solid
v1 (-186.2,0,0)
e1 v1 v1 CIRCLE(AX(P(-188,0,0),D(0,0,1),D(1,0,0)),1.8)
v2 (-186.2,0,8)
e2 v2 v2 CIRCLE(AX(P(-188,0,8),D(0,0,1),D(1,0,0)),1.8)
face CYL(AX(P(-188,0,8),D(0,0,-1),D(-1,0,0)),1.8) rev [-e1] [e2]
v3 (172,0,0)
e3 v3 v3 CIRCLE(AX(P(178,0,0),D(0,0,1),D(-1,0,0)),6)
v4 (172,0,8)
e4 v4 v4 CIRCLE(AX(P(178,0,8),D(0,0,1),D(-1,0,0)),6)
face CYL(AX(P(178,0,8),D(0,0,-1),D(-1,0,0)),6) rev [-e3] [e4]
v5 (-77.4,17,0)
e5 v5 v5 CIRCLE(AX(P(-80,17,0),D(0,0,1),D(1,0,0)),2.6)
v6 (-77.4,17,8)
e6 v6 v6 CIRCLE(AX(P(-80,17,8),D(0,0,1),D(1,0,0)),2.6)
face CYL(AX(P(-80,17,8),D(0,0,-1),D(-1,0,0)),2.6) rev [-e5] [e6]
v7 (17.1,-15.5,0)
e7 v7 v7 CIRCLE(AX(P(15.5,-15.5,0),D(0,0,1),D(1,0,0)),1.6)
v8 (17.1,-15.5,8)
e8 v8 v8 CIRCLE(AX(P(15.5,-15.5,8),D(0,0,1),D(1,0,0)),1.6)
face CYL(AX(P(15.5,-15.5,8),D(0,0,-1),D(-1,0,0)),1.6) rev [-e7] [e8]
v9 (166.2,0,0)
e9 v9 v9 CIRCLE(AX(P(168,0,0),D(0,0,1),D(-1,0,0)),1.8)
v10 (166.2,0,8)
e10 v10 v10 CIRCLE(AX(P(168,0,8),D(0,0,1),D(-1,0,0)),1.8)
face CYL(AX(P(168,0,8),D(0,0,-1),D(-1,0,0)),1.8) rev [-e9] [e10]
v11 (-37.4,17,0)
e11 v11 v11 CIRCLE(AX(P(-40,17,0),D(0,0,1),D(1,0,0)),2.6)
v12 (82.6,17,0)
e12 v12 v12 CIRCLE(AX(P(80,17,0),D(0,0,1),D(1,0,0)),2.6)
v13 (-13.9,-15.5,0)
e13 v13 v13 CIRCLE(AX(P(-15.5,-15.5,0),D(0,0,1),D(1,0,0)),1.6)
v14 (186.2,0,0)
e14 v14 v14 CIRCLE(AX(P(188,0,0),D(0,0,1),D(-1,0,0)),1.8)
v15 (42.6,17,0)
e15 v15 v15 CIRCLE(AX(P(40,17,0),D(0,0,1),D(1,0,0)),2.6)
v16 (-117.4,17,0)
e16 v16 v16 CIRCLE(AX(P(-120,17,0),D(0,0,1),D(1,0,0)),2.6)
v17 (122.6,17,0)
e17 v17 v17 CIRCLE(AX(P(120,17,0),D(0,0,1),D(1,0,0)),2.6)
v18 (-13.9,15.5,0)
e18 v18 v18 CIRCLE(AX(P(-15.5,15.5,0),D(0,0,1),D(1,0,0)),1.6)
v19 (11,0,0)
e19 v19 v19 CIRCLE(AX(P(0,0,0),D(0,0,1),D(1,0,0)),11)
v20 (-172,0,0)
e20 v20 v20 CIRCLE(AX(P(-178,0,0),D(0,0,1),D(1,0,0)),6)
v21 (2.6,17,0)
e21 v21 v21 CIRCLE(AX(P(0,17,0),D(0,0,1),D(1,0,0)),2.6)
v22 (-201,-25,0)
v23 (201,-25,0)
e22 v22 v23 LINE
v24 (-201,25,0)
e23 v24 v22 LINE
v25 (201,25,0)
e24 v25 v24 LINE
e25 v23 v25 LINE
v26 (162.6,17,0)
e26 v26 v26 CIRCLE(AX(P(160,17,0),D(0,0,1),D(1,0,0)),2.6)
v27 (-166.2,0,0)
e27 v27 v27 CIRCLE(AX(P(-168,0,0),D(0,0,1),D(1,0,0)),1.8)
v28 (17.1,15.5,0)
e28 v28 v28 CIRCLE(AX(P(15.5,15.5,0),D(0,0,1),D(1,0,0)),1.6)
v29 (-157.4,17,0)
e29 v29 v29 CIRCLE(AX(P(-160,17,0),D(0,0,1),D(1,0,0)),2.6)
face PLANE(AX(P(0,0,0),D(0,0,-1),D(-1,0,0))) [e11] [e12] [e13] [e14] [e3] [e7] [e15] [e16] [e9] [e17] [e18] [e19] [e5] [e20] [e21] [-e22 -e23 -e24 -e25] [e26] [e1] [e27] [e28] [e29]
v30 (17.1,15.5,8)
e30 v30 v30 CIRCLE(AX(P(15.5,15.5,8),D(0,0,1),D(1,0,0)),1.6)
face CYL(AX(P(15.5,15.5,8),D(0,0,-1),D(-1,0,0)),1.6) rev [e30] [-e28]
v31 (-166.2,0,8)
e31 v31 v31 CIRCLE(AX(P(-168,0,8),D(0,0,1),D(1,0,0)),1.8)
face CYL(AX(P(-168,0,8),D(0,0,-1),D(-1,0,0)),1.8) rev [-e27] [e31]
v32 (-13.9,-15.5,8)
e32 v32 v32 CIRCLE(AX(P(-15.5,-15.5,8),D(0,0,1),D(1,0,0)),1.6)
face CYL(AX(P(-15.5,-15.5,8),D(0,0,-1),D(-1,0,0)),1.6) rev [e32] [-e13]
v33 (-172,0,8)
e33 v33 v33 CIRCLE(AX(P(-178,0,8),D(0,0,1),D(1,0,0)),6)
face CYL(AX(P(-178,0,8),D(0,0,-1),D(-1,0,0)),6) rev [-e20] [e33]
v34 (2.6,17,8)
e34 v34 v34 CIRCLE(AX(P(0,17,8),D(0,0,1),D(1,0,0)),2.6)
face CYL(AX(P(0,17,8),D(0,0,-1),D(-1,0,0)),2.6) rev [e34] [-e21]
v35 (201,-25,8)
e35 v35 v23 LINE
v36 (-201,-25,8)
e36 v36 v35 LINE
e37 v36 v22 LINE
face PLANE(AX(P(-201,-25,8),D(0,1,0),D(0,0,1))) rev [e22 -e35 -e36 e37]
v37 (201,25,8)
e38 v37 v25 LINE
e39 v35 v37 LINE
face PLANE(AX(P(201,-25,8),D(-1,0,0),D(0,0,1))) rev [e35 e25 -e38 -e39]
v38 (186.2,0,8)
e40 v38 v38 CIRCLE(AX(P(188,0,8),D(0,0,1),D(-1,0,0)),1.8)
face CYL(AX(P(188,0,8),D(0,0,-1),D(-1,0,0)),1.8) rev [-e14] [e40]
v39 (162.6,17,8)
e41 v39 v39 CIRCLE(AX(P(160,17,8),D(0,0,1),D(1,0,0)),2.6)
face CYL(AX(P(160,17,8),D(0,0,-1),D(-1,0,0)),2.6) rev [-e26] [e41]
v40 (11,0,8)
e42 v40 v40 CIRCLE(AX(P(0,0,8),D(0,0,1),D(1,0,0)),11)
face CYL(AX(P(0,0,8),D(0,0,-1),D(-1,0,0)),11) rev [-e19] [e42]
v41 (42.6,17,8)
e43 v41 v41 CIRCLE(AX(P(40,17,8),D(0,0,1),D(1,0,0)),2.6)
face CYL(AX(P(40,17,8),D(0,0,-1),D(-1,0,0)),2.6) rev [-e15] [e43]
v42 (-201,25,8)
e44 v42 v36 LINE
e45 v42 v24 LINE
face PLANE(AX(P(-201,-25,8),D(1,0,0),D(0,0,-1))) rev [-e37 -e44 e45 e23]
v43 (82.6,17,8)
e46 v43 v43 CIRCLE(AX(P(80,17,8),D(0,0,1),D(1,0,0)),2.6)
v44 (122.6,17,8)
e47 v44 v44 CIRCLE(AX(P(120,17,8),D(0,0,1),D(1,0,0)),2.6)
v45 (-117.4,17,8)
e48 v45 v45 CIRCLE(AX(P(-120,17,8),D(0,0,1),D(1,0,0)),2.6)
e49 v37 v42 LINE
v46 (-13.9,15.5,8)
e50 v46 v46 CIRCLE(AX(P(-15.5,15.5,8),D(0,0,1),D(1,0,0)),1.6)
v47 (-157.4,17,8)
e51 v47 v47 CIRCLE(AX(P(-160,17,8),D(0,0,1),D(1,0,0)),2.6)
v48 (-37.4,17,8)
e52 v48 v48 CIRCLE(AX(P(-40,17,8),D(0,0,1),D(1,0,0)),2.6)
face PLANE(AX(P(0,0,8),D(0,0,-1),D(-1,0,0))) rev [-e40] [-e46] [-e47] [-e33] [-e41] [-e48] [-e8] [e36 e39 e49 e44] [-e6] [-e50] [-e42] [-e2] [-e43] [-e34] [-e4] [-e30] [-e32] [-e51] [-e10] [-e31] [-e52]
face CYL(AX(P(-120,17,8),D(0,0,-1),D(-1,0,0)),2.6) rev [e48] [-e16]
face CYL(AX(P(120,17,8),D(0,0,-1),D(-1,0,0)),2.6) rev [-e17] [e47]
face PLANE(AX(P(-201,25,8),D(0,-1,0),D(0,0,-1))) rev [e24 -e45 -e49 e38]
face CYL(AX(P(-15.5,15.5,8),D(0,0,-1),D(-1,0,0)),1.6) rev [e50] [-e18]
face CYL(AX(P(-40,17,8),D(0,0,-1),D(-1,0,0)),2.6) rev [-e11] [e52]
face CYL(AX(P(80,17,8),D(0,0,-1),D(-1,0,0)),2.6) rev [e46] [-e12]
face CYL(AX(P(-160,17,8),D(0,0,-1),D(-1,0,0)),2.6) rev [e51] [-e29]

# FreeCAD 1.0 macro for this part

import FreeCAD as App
import Part
import Sketcher
from FreeCAD import Vector


def add_polygon(sketch, points):
    """Adds a closed chain of lines whose ends are joined by coincident constraints."""
    first, n = sketch.GeometryCount, len(points)
    for a, b in zip(points, points[1:] + points[:1]):
        sketch.addGeometry(Part.LineSegment(App.Vector(*a, 0), App.Vector(*b, 0)), False)
    for i in range(n):
        sketch.addConstraint(Sketcher.Constraint("Coincident", first + i, 2, first + (i + 1) % n, 1))

doc = App.newDocument("Part")
body = doc.addObject("PartDesign::Body", "Body")

# Sketch on XY plane
sketch1 = body.newObject("Sketcher::SketchObject", "Sketch")
sketch1.AttachmentSupport = (doc.getObject("XY_Plane"), [""])
sketch1.MapMode = "FlatFace"
add_polygon(sketch1, [(-201, 25), (-201, -25), (201, -25), (201, 25)])  # lines 0-3
sketch1.addGeometry(Part.Circle(Vector(-15.5, -15.5, 0), Vector(0, 0, 1), 1.6), False)  # 4
sketch1.addGeometry(Part.Circle(Vector(-188, 0, 0), Vector(0, 0, 1), 1.8), False)  # 5
sketch1.addGeometry(Part.Circle(Vector(-178, 0, 0), Vector(0, 0, 1), 6), False)  # 6
sketch1.addGeometry(Part.Circle(Vector(-168, 0, 0), Vector(0, 0, 1), 1.8), False)  # 7
sketch1.addGeometry(Part.Circle(Vector(15.5, -15.5, 0), Vector(0, 0, 1), 1.6), False)  # 8
sketch1.addGeometry(Part.Circle(Vector(0, 0, 0), Vector(0, 0, 1), 11), False)  # 9
sketch1.addGeometry(Part.Circle(Vector(168, 0, 0), Vector(0, 0, 1), 1.8), False)  # 10
sketch1.addGeometry(Part.Circle(Vector(178, 0, 0), Vector(0, 0, 1), 6), False)  # 11
sketch1.addGeometry(Part.Circle(Vector(188, 0, 0), Vector(0, 0, 1), 1.8), False)  # 12
sketch1.addGeometry(Part.Circle(Vector(-160, 17, 0), Vector(0, 0, 1), 2.6), False)  # 13
sketch1.addGeometry(Part.Circle(Vector(-120, 17, 0), Vector(0, 0, 1), 2.6), False)  # 14
sketch1.addGeometry(Part.Circle(Vector(-80, 17, 0), Vector(0, 0, 1), 2.6), False)  # 15
sketch1.addGeometry(Part.Circle(Vector(-40, 17, 0), Vector(0, 0, 1), 2.6), False)  # 16
sketch1.addGeometry(Part.Circle(Vector(-15.5, 15.5, 0), Vector(0, 0, 1), 1.6), False)  # 17
sketch1.addGeometry(Part.Circle(Vector(15.5, 15.5, 0), Vector(0, 0, 1), 1.6), False)  # 18
sketch1.addGeometry(Part.Circle(Vector(0, 17, 0), Vector(0, 0, 1), 2.6), False)  # 19
sketch1.addGeometry(Part.Circle(Vector(40, 17, 0), Vector(0, 0, 1), 2.6), False)  # 20
sketch1.addGeometry(Part.Circle(Vector(80, 17, 0), Vector(0, 0, 1), 2.6), False)  # 21
sketch1.addGeometry(Part.Circle(Vector(120, 17, 0), Vector(0, 0, 1), 2.6), False)  # 22
sketch1.addGeometry(Part.Circle(Vector(160, 17, 0), Vector(0, 0, 1), 2.6), False)  # 23
sketch1.addConstraint([
    Sketcher.Constraint("Vertical", 0),
    Sketcher.Constraint("Horizontal", 1),
    Sketcher.Constraint("Vertical", 2),
    Sketcher.Constraint("Horizontal", 3),
    Sketcher.Constraint("Coincident", 9, 3, -1, 1),
    Sketcher.Constraint("Equal", 5, 7),
    Sketcher.Constraint("Equal", 4, 8),
    Sketcher.Constraint("Equal", 7, 10),
    Sketcher.Constraint("Equal", 6, 11),
    Sketcher.Constraint("Equal", 10, 12),
    Sketcher.Constraint("Equal", 13, 14),
    Sketcher.Constraint("Equal", 14, 15),
    Sketcher.Constraint("Equal", 15, 16),
    Sketcher.Constraint("Equal", 8, 17),
    Sketcher.Constraint("Equal", 17, 18),
    Sketcher.Constraint("Equal", 16, 19),
    Sketcher.Constraint("Equal", 19, 20),
    Sketcher.Constraint("Equal", 20, 21),
    Sketcher.Constraint("Equal", 21, 22),
    Sketcher.Constraint("Equal", 22, 23),
    Sketcher.Constraint("Symmetric", 7, 3, 10, 3, -1, 1),
    Sketcher.Constraint("Symmetric", 6, 3, 11, 3, -1, 1),
    Sketcher.Constraint("Symmetric", 5, 3, 12, 3, -1, 1),
    Sketcher.Constraint("Symmetric", 8, 3, 17, 3, -1, 1),
    Sketcher.Constraint("Symmetric", 4, 3, 18, 3, -1, 1),
    Sketcher.Constraint("Symmetric", 0, 2, 2, 2, -1, 1),
    Sketcher.Constraint("Symmetric", 4, 3, 8, 3, -2),
    Sketcher.Constraint("Symmetric", 16, 3, 20, 3, -2),
    Sketcher.Constraint("Symmetric", 15, 3, 21, 3, -2),
    Sketcher.Constraint("Symmetric", 14, 3, 22, 3, -2),
    Sketcher.Constraint("Symmetric", 13, 3, 23, 3, -2),
    Sketcher.Constraint("PointOnObject", 5, 3, -1),
    Sketcher.Constraint("PointOnObject", 6, 3, -1),
    Sketcher.Constraint("PointOnObject", 7, 3, -1),
    Sketcher.Constraint("PointOnObject", 19, 3, -2),
    Sketcher.Constraint("Horizontal", 13, 3, 14, 3),
    Sketcher.Constraint("Horizontal", 14, 3, 15, 3),
    Sketcher.Constraint("Horizontal", 15, 3, 16, 3),
    Sketcher.Constraint("Horizontal", 16, 3, 19, 3),
    Sketcher.Constraint("Diameter", 6, 12.0),
    Sketcher.Constraint("Diameter", 9, 22.0),
    Sketcher.Constraint("Diameter", 4, 3.2),
    Sketcher.Constraint("Diameter", 5, 3.6),
    Sketcher.Constraint("Diameter", 13, 5.2),
    Sketcher.Constraint("DistanceX", 1, 1, 1, 2, 402.0),
    Sketcher.Constraint("DistanceY", 0, 2, 0, 1, 50.0),
    Sketcher.Constraint("DistanceX", 5, 3, -1, 1, 188.0),
    Sketcher.Constraint("DistanceX", 6, 3, -1, 1, 178.0),
    Sketcher.Constraint("DistanceX", 7, 3, -1, 1, 168.0),
    Sketcher.Constraint("DistanceX", 13, 3, -1, 1, 160.0),
    Sketcher.Constraint("DistanceY", -1, 1, 13, 3, 17.0),
    Sketcher.Constraint("DistanceX", 14, 3, -1, 1, 120.0),
    Sketcher.Constraint("DistanceX", 15, 3, -1, 1, 80.0),
    Sketcher.Constraint("DistanceX", 16, 3, -1, 1, 40.0),
    Sketcher.Constraint("DistanceX", 4, 3, 8, 3, 31.0),
    Sketcher.Constraint("DistanceY", 4, 3, 17, 3, 31.0),
])
pad1 = body.newObject("PartDesign::Pad", "Pad")
pad1.Profile = sketch1
pad1.Length = 8

doc.recompute()
